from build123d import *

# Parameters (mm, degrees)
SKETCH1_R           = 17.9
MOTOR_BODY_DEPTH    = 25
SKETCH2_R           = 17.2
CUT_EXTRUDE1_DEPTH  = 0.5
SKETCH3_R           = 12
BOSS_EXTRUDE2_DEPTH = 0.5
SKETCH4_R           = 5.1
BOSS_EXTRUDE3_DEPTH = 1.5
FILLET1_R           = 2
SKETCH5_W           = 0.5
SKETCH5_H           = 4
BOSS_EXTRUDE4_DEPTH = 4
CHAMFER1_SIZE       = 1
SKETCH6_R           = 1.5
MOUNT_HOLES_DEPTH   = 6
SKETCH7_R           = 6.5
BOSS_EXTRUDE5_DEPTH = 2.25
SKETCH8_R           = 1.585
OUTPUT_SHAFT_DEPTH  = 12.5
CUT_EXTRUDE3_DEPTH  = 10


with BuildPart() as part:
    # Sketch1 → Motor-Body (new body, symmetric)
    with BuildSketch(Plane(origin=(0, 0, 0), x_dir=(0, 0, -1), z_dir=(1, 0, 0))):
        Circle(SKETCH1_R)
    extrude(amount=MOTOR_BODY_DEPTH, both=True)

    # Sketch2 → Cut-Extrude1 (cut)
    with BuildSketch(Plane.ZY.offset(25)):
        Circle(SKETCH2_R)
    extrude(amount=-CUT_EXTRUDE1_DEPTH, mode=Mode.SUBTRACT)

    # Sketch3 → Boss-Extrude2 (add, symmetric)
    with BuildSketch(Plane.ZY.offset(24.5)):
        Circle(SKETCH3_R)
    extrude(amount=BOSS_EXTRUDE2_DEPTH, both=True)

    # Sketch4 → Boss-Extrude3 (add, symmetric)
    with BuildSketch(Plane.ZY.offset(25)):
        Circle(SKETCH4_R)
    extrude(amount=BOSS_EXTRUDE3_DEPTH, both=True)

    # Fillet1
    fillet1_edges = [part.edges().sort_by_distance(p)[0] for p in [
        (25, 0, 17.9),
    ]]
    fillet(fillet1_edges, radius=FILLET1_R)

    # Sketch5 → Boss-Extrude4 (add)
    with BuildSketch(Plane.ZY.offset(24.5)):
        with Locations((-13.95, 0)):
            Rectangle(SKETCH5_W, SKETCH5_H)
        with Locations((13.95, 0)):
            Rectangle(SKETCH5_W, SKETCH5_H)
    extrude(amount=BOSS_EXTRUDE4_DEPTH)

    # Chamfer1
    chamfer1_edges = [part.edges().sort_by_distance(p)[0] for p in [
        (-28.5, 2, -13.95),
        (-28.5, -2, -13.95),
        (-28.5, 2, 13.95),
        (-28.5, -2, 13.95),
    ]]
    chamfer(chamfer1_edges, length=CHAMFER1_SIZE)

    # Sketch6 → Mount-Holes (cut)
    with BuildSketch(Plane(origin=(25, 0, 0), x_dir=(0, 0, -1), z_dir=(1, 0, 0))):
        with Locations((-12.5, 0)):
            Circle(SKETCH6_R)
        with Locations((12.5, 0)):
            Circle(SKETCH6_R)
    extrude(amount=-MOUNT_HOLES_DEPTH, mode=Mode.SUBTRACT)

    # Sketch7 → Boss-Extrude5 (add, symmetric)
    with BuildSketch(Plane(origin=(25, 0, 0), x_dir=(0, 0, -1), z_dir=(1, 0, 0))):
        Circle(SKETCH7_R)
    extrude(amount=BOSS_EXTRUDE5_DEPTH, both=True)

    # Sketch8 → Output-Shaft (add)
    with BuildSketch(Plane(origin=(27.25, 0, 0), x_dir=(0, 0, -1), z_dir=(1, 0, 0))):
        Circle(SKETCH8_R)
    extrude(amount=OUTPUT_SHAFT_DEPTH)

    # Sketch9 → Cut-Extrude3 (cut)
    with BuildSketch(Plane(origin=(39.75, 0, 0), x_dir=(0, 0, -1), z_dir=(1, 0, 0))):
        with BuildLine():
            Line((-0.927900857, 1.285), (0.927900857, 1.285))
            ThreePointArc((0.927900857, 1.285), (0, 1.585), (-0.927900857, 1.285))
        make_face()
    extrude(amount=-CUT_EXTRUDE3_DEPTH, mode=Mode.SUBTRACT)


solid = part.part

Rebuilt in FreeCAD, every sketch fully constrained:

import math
import FreeCAD as App
import Part
import Sketcher


def edges_at(feature, points):
    """Names of the edges that pass closest to the given points."""
    edges = feature.Shape.Edges
    near = lambda p: min(range(len(edges)), key=lambda i: edges[i].distToShape(Part.Vertex(*p))[0])
    return sorted({f"Edge{near(p) + 1}" for p in points})


def add_polygon(sketch, points):
    """Adds a closed chain of lines whose ends are joined by coincident constraints."""
    first, n = sketch.GeometryCount, len(points)
    for a, b in zip(points, points[1:] + points[:1]):
        sketch.addGeometry(Part.LineSegment(App.Vector(*a, 0), App.Vector(*b, 0)), False)
    for i in range(n):
        sketch.addConstraint(Sketcher.Constraint("Coincident", first + i, 2, first + (i + 1) % n, 1))

doc = App.newDocument("Part")
body = doc.addObject("PartDesign::Body", "Body")

sketch1 = body.newObject("Sketcher::SketchObject", "Sketch")
sketch1.AttachmentSupport = (doc.getObject("YZ_Plane"), [""])
sketch1.MapMode = "FlatFace"
sketch1.addGeometry(Part.Circle(App.Vector(0, 0, 0), App.Vector(0, 0, 1), 17.9), False)
sketch1.addConstraint(Sketcher.Constraint("Coincident", 0, 3, -1, 1))
sketch1.addConstraint(Sketcher.Constraint("Diameter", 0, 35.8))
pad1 = body.newObject("PartDesign::Pad", "Pad")
pad1.Profile = sketch1
pad1.Length = 50
pad1.Midplane = True

sketch2 = body.newObject("Sketcher::SketchObject", "Sketch001")
sketch2.AttachmentSupport = (doc.getObject("YZ_Plane"), [""])
sketch2.MapMode = "FlatFace"
sketch2.AttachmentOffset = App.Placement(App.Vector(0, 0, -25), App.Rotation())
sketch2.addGeometry(Part.Circle(App.Vector(0, 0, 0), App.Vector(0, 0, 1), 17.2), False)
sketch2.addConstraint(Sketcher.Constraint("Coincident", 0, 3, -1, 1))
sketch2.addConstraint(Sketcher.Constraint("Diameter", 0, 34.4))
pocket1 = body.newObject("PartDesign::Pocket", "Pocket")
pocket1.Profile = sketch2
pocket1.Length = 0.5
pocket1.Reversed = True

sketch3 = body.newObject("Sketcher::SketchObject", "Sketch002")
sketch3.AttachmentSupport = (doc.getObject("YZ_Plane"), [""])
sketch3.MapMode = "FlatFace"
sketch3.AttachmentOffset = App.Placement(App.Vector(0, 0, -24.5), App.Rotation())
sketch3.addGeometry(Part.Circle(App.Vector(0, 0, 0), App.Vector(0, 0, 1), 12), False)
sketch3.addConstraint(Sketcher.Constraint("Coincident", 0, 3, -1, 1))
sketch3.addConstraint(Sketcher.Constraint("Diameter", 0, 24.0))
pad2 = body.newObject("PartDesign::Pad", "Pad001")
pad2.Profile = sketch3
pad2.Length = 1
pad2.Midplane = True

sketch4 = body.newObject("Sketcher::SketchObject", "Sketch003")
sketch4.AttachmentSupport = (doc.getObject("YZ_Plane"), [""])
sketch4.MapMode = "FlatFace"
sketch4.AttachmentOffset = App.Placement(App.Vector(0, 0, -25), App.Rotation())
sketch4.addGeometry(Part.Circle(App.Vector(0, 0, 0), App.Vector(0, 0, 1), 5.1), False)
sketch4.addConstraint(Sketcher.Constraint("Coincident", 0, 3, -1, 1))
sketch4.addConstraint(Sketcher.Constraint("Diameter", 0, 10.2))
pad3 = body.newObject("PartDesign::Pad", "Pad002")
pad3.Profile = sketch4
pad3.Length = 3
pad3.Midplane = True
doc.recompute()

fillet = body.newObject("PartDesign::Fillet", "Fillet")
fillet.Base = (pad3, edges_at(pad3, [(25, 0, 17.9)]))
fillet.Radius = 2

sketch5 = body.newObject("Sketcher::SketchObject", "Sketch004")
sketch5.AttachmentSupport = (doc.getObject("YZ_Plane"), [""])
sketch5.MapMode = "FlatFace"
sketch5.AttachmentOffset = App.Placement(App.Vector(0, 0, -24.5), App.Rotation())
add_polygon(sketch5, [(2, -14.2), (-2, -14.2), (-2, -13.7), (2, -13.7)])
add_polygon(sketch5, [(2, 13.7), (-2, 13.7), (-2, 14.2), (2, 14.2)])
sketch5.addConstraint(Sketcher.Constraint("Horizontal", 0))
sketch5.addConstraint(Sketcher.Constraint("Vertical", 1))
sketch5.addConstraint(Sketcher.Constraint("Horizontal", 2))
sketch5.addConstraint(Sketcher.Constraint("Vertical", 3))
sketch5.addConstraint(Sketcher.Constraint("Horizontal", 4))
sketch5.addConstraint(Sketcher.Constraint("Vertical", 5))
sketch5.addConstraint(Sketcher.Constraint("Horizontal", 6))
sketch5.addConstraint(Sketcher.Constraint("Vertical", 7))
sketch5.addConstraint(Sketcher.Constraint("Symmetric", 2, 2, 4, 2, -1, 1))
sketch5.addConstraint(Sketcher.Constraint("Symmetric", 0, 2, 6, 2, -1, 1))
sketch5.addConstraint(Sketcher.Constraint("Vertical", 1, 2, 4, 2))
sketch5.addConstraint(Sketcher.Constraint("DistanceX", 0, 2, 0, 1, 4.0))
sketch5.addConstraint(Sketcher.Constraint("DistanceY", 1, 1, 1, 2, 0.5))
sketch5.addConstraint(Sketcher.Constraint("DistanceY", 0, 2, -1, 1, 14.2))
pad4 = body.newObject("PartDesign::Pad", "Pad003")
pad4.Profile = sketch5
pad4.Length = 4
pad4.Reversed = True
doc.recompute()

chamfer = body.newObject("PartDesign::Chamfer", "Chamfer")
chamfer.Base = (pad4, edges_at(pad4, [
    (-28.5, 2, -13.95),
    (-28.5, -2, -13.95),
    (-28.5, 2, 13.95),
    (-28.5, -2, 13.95),
]))
chamfer.Size = 1

sketch6 = body.newObject("Sketcher::SketchObject", "Sketch005")
sketch6.AttachmentSupport = (doc.getObject("YZ_Plane"), [""])
sketch6.MapMode = "FlatFace"
sketch6.AttachmentOffset = App.Placement(App.Vector(0, 0, 25), App.Rotation())
sketch6.addGeometry(Part.Circle(App.Vector(0, 12.5, 0), App.Vector(0, 0, 1), 1.5), False)
sketch6.addGeometry(Part.Circle(App.Vector(0, -12.5, 0), App.Vector(0, 0, 1), 1.5), False)
sketch6.addConstraint(Sketcher.Constraint("Equal", 0, 1))
sketch6.addConstraint(Sketcher.Constraint("Symmetric", 0, 3, 1, 3, -1, 1))
sketch6.addConstraint(Sketcher.Constraint("PointOnObject", 0, 3, -2))
sketch6.addConstraint(Sketcher.Constraint("Diameter", 0, 3.0))
sketch6.addConstraint(Sketcher.Constraint("DistanceY", 1, 3, 0, 3, 25.0))
pocket2 = body.newObject("PartDesign::Pocket", "Pocket001")
pocket2.Profile = sketch6
pocket2.Length = 6

sketch7 = body.newObject("Sketcher::SketchObject", "Sketch006")
sketch7.AttachmentSupport = (doc.getObject("YZ_Plane"), [""])
sketch7.MapMode = "FlatFace"
sketch7.AttachmentOffset = App.Placement(App.Vector(0, 0, 25), App.Rotation())
sketch7.addGeometry(Part.Circle(App.Vector(0, 0, 0), App.Vector(0, 0, 1), 6.5), False)
sketch7.addConstraint(Sketcher.Constraint("Coincident", 0, 3, -1, 1))
sketch7.addConstraint(Sketcher.Constraint("Diameter", 0, 13.0))
pad5 = body.newObject("PartDesign::Pad", "Pad004")
pad5.Profile = sketch7
pad5.Length = 4.5
pad5.Midplane = True

sketch8 = body.newObject("Sketcher::SketchObject", "Sketch007")
sketch8.AttachmentSupport = (doc.getObject("YZ_Plane"), [""])
sketch8.MapMode = "FlatFace"
sketch8.AttachmentOffset = App.Placement(App.Vector(0, 0, 27.25), App.Rotation())
sketch8.addGeometry(Part.Circle(App.Vector(0, 0, 0), App.Vector(0, 0, 1), 1.585), False)
sketch8.addConstraint(Sketcher.Constraint("Coincident", 0, 3, -1, 1))
sketch8.addConstraint(Sketcher.Constraint("Diameter", 0, 3.17))
pad6 = body.newObject("PartDesign::Pad", "Pad005")
pad6.Profile = sketch8
pad6.Length = 12.5

sketch9 = body.newObject("Sketcher::SketchObject", "Sketch008")
sketch9.AttachmentSupport = (doc.getObject("YZ_Plane"), [""])
sketch9.MapMode = "FlatFace"
sketch9.AttachmentOffset = App.Placement(App.Vector(0, 0, 39.75), App.Rotation())
sketch9.addGeometry(Part.LineSegment(App.Vector(1.285, 0.927901, 0), App.Vector(1.285, -0.927901, 0)), False)
sketch9.addGeometry(Part.ArcOfCircle(Part.Circle(App.Vector(0, 0, 0), App.Vector(0, 0, 1), 1.585), math.radians(-35.833119), math.radians(35.833119)), False)
sketch9.addConstraint(Sketcher.Constraint("Coincident", 0, 1, 1, 2))
sketch9.addConstraint(Sketcher.Constraint("Coincident", 1, 1, 0, 2))
sketch9.addConstraint(Sketcher.Constraint("Vertical", 0))
sketch9.addConstraint(Sketcher.Constraint("Coincident", 1, 3, -1, 1))
sketch9.addConstraint(Sketcher.Constraint("Radius", 1, 1.585))
sketch9.addConstraint(Sketcher.Constraint("DistanceY", 0, 2, 0, 1, 1.855802))
pocket3 = body.newObject("PartDesign::Pocket", "Pocket002")
pocket3.Profile = sketch9
pocket3.Length = 10

doc.recompute()
